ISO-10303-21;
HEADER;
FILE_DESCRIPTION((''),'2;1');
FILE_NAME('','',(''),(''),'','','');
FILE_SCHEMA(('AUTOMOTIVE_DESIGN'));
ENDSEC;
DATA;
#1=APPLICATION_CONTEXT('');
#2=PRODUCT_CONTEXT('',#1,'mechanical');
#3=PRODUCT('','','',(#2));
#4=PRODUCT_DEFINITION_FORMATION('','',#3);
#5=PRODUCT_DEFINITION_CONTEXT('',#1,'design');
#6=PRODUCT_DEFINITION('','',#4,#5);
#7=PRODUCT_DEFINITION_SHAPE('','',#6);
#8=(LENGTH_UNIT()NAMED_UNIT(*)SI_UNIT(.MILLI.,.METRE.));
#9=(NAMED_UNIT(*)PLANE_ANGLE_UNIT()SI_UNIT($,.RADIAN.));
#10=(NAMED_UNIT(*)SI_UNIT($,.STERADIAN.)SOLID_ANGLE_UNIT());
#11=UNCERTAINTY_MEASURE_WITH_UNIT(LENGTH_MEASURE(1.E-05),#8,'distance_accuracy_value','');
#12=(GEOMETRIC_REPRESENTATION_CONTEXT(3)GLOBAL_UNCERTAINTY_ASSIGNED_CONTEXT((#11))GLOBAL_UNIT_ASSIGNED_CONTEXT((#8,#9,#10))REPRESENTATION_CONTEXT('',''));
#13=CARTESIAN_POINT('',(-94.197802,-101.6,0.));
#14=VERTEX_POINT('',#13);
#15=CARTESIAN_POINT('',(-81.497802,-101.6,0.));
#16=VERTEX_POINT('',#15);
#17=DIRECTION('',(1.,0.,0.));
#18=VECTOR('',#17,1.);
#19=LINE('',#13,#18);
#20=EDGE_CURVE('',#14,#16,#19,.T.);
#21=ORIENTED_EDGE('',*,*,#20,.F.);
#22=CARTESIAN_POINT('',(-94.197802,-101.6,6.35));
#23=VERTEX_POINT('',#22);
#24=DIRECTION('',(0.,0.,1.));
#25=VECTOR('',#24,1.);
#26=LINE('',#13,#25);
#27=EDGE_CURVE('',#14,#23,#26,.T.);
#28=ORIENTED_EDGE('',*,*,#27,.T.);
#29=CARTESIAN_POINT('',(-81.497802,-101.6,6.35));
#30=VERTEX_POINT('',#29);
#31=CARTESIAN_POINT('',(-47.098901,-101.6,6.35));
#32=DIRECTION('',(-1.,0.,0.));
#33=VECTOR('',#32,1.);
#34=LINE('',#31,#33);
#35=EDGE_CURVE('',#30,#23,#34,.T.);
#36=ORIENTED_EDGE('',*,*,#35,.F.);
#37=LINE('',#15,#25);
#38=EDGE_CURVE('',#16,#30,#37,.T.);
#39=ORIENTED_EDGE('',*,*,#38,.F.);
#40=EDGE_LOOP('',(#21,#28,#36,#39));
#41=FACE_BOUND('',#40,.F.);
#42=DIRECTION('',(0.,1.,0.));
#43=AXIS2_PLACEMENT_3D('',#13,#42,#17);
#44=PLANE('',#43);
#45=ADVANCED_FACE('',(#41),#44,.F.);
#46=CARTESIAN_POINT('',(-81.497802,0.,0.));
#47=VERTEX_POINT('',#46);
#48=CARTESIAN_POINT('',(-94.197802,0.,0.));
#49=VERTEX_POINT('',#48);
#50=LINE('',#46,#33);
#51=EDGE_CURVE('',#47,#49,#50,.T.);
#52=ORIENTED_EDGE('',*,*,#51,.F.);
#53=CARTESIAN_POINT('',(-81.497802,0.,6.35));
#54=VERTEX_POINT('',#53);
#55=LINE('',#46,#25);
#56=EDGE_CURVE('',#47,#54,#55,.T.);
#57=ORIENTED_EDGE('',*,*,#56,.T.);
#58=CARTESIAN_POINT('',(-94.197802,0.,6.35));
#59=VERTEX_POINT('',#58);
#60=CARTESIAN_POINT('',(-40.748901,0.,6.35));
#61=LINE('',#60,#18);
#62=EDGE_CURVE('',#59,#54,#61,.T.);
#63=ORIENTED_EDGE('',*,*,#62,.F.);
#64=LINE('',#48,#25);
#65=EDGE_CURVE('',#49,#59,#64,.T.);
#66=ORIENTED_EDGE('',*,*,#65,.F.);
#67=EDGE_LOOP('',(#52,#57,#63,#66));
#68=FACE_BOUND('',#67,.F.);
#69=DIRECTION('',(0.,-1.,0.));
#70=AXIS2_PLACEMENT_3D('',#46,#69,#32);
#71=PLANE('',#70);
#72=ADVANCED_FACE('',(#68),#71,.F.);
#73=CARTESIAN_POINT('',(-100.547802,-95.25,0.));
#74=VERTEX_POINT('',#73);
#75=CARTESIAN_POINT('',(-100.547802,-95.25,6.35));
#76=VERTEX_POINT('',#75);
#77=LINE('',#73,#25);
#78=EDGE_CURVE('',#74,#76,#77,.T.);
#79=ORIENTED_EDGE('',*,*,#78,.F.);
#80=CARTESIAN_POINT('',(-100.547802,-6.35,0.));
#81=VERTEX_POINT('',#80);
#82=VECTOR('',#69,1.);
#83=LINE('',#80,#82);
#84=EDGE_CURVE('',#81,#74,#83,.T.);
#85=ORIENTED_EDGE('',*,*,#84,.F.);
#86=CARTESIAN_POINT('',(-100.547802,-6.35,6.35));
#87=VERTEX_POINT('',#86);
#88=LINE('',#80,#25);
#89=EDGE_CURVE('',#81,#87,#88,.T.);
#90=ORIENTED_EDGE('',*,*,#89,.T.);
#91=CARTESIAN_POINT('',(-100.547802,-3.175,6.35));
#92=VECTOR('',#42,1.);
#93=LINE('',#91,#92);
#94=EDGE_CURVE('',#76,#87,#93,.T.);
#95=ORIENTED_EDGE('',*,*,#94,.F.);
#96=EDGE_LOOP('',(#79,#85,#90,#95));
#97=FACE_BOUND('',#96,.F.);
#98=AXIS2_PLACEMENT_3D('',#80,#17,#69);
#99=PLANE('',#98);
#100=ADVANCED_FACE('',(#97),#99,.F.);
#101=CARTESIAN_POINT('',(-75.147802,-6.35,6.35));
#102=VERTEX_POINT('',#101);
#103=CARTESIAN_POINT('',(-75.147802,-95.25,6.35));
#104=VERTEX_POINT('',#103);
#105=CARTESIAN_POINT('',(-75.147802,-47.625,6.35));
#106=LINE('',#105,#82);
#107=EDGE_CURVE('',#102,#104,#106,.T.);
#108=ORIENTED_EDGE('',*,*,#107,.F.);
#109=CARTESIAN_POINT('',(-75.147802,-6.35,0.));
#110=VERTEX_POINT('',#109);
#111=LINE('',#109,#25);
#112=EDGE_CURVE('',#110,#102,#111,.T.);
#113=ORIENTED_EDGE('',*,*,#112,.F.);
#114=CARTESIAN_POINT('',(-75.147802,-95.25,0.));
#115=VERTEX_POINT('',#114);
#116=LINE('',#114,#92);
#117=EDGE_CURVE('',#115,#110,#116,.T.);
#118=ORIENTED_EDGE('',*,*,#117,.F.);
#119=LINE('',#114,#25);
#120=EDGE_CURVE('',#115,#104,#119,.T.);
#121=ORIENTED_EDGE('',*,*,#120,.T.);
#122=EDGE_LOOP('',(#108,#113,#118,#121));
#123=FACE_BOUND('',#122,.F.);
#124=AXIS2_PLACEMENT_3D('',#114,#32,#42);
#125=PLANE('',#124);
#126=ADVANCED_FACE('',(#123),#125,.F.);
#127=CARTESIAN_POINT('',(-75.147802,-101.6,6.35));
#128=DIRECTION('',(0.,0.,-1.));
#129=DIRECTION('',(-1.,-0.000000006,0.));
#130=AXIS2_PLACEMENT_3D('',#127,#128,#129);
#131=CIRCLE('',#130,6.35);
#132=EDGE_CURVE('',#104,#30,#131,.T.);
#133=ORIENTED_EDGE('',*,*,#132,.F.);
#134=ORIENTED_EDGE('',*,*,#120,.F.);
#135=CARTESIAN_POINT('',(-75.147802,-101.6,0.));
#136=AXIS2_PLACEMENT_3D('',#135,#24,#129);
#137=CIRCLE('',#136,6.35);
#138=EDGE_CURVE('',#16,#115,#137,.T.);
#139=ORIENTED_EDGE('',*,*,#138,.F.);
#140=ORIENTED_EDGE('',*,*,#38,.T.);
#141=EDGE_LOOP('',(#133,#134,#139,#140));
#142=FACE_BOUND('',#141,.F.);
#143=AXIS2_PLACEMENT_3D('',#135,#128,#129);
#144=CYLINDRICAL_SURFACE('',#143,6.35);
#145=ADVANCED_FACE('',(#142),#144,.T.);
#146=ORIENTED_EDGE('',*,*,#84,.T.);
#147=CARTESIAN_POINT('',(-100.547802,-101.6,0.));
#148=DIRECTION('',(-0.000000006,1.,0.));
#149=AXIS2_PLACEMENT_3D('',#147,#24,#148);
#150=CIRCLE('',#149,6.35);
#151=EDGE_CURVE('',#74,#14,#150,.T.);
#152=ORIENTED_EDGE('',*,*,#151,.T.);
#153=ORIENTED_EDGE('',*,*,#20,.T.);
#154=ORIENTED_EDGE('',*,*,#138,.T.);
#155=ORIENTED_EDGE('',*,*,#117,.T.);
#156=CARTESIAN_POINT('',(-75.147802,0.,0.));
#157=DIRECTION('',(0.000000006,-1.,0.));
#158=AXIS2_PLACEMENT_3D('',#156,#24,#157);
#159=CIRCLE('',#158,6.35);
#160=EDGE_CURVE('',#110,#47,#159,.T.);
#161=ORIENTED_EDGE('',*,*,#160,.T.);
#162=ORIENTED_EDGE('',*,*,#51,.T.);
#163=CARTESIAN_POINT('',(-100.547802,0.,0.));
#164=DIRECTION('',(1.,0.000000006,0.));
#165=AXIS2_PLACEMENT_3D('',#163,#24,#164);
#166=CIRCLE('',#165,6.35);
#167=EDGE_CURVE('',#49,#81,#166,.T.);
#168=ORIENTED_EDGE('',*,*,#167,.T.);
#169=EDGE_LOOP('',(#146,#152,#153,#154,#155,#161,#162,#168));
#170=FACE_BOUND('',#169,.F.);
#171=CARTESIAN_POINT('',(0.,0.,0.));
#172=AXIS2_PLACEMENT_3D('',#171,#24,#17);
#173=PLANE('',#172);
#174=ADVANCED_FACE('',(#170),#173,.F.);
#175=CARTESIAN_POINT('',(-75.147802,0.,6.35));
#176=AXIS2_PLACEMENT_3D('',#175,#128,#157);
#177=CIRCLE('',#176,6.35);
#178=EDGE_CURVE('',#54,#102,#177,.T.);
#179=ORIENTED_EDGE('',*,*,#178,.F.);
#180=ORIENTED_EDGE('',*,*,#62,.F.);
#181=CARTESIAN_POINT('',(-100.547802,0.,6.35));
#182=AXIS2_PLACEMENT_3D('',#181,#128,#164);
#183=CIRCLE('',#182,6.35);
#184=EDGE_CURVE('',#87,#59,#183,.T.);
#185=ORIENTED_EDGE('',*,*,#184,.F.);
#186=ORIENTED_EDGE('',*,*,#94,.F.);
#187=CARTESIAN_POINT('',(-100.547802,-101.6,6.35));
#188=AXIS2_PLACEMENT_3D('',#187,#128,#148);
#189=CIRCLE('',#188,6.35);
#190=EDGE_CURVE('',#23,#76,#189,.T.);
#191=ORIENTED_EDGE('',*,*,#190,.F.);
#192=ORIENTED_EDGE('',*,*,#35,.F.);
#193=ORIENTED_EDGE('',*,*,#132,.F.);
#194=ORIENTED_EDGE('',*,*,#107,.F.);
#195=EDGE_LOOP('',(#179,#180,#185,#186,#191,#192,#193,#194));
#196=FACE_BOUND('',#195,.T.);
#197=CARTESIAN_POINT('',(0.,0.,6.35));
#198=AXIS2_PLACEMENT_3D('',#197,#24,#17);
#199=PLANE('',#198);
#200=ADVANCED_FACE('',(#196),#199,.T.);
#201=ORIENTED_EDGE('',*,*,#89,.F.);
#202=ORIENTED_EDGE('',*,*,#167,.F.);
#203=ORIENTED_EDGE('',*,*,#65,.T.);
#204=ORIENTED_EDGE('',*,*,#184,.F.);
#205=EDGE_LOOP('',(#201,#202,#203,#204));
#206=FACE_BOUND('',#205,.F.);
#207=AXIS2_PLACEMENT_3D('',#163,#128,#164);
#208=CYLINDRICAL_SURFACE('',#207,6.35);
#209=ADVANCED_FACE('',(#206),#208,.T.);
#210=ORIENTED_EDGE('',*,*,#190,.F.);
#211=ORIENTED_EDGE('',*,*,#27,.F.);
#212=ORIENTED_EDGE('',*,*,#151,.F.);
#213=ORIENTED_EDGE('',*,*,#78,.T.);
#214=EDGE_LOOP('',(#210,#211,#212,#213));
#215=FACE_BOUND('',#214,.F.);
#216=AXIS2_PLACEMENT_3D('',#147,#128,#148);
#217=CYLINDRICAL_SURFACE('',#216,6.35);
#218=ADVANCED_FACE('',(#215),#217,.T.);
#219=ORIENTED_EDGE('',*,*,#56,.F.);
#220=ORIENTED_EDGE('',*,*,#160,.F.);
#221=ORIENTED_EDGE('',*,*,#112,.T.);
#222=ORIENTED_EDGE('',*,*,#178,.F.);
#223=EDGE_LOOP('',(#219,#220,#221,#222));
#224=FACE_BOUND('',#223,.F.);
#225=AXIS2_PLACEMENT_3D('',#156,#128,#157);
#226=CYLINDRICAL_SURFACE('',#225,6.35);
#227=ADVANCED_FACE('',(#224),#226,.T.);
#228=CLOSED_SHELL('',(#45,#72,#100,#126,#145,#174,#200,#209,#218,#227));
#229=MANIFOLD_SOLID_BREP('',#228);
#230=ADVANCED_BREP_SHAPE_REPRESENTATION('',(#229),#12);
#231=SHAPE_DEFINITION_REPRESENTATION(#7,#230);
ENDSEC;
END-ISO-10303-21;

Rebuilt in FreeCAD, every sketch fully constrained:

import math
import FreeCAD as App
import Part
import Sketcher

V = App.Vector
Q = App.Units.Quantity

doc = App.newDocument("Part")
body = doc.addObject("PartDesign::Body", "Body")

# Sketch on XY plane
sketch1 = body.newObject("Sketcher::SketchObject", "Sketch")
sketch1.AttachmentSupport = (doc.getObject("XY_Plane"), [""])
sketch1.MapMode = "FlatFace"
sketch1.addGeometry([
    Part.LineSegment(V(-127, 127, 0), V(-127, -127, 0)),
    Part.LineSegment(V(-127, -127, 0), V(127, -127, 0)),
    Part.LineSegment(V(127, -127, 0), V(127, 127, 0)),
    Part.LineSegment(V(127, 127, 0), V(-127, 127, 0)),
], False)
sketch1.addConstraint([
    Sketcher.Constraint("Coincident", 0, 2, 1, 1),
    Sketcher.Constraint("Coincident", 1, 2, 2, 1),
    Sketcher.Constraint("Coincident", 2, 2, 3, 1),
    Sketcher.Constraint("Coincident", 3, 2, 0, 1),
    Sketcher.Constraint("Vertical", 0),
    Sketcher.Constraint("Horizontal", 1),
    Sketcher.Constraint("Vertical", 2),
    Sketcher.Constraint("Horizontal", 3),
    Sketcher.Constraint("Symmetric", 0, 2, 2, 2, -1, 1),
    Sketcher.Constraint("Equal", 3, 0),
    Sketcher.Constraint("DistanceX", 1, 1, 1, 2, Q("10 in")),
])
pad1 = body.newObject("PartDesign::Pad", "Pad")
pad1.Profile = sketch1
pad1.Length = Q("0.25 in")

# Sketch on XY plane
sketch2 = body.newObject("Sketcher::SketchObject", "Sketch001")
sketch2.AttachmentSupport = (doc.getObject("XY_Plane"), [""])
sketch2.MapMode = "FlatFace"
sketch2.addGeometry([
    Part.LineSegment(V(-127, -127, 0), V(-127, 127, 0)),  # 0
    Part.LineSegment(V(-127, 127, 0), V(127, 127, 0)),  # 1
    Part.LineSegment(V(127, 127, 0), V(127, -127, 0)),  # 2
    Part.LineSegment(V(127, -127, 0), V(-127, -127, 0)),  # 3
    Part.LineSegment(V(-101, -6, 0), V(-101, -95, 0)),  # 4
    Part.ArcOfCircle(Part.Circle(V(-101, -102, 0), V(0, 0, 1), 6), math.radians(90), math.radians(360)),  # 5
    Part.LineSegment(V(-94, -102, 0), V(-81, -102, 0)),  # 6
    Part.ArcOfCircle(Part.Circle(V(-75, -102, 0), V(0, 0, 1), 6), math.radians(-180), math.radians(90)),  # 7
    Part.LineSegment(V(-75, -95, 0), V(-75, -6, 0)),  # 8
    Part.ArcOfCircle(Part.Circle(V(-75, 0, 0), V(0, 0, 1), 6), math.radians(-90), math.radians(180)),  # 9
    Part.LineSegment(V(-81, 0, 0), V(-94, 0, 0)),  # 10
    Part.ArcOfCircle(Part.Circle(V(-101, 0, 0), V(0, 0, 1), 6), math.radians(0), math.radians(270)),  # 11
], False)
sketch2.addConstraint([
    Sketcher.Constraint("Coincident", 0, 2, 1, 1),
    Sketcher.Constraint("Coincident", 1, 2, 2, 1),
    Sketcher.Constraint("Coincident", 2, 2, 3, 1),
    Sketcher.Constraint("Coincident", 3, 2, 0, 1),
    Sketcher.Constraint("Coincident", 4, 2, 5, 1),
    Sketcher.Constraint("Coincident", 5, 2, 6, 1),
    Sketcher.Constraint("Coincident", 6, 2, 7, 1),
    Sketcher.Constraint("Coincident", 7, 2, 8, 1),
    Sketcher.Constraint("Coincident", 8, 2, 9, 1),
    Sketcher.Constraint("Coincident", 9, 2, 10, 1),
    Sketcher.Constraint("Coincident", 10, 2, 11, 1),
    Sketcher.Constraint("Coincident", 11, 2, 4, 1),
    Sketcher.Constraint("Vertical", 0),
    Sketcher.Constraint("Horizontal", 1),
    Sketcher.Constraint("Vertical", 2),
    Sketcher.Constraint("Horizontal", 3),
    Sketcher.Constraint("Vertical", 4),
    Sketcher.Constraint("Horizontal", 6),
    Sketcher.Constraint("Vertical", 8),
    Sketcher.Constraint("Horizontal", 10),
    Sketcher.Constraint("Equal", 5, 7),
    Sketcher.Constraint("Equal", 7, 9),
    Sketcher.Constraint("Equal", 9, 11),
    Sketcher.Constraint("Symmetric", 0, 2, 2, 2, -1, 1),
    Sketcher.Constraint("PointOnObject", 9, 3, -1),
    Sketcher.Constraint("PointOnObject", 11, 3, -1),
    Sketcher.Constraint("PointOnObject", 9, 2, -1),
    Sketcher.Constraint("Horizontal", 5, 3, 7, 3),
    Sketcher.Constraint("Horizontal", 7, 3, 5, 2),
    Sketcher.Constraint("Vertical", 7, 3, 9, 3),
    Sketcher.Constraint("Vertical", 5, 3, 11, 3),
    Sketcher.Constraint("Vertical", 11, 3, 4, 2),
    Sketcher.Constraint("Vertical", 9, 3, 7, 2),
    Sketcher.Constraint("Equal", 3, 0),
    Sketcher.Constraint("DistanceX", 1, 1, 1, 2, Q("10 in")),
    Sketcher.Constraint("Radius", 5, Q("0.25 in")),
    Sketcher.Constraint("DistanceX", 6, 1, 6, 2, Q("0.5 in")),
    Sketcher.Constraint("DistanceY", 4, 2, 4, 1, Q("3.5 in")),
    Sketcher.Constraint("DistanceX", 5, 3, -1, 1, 100.547802),
])
pocket1 = body.newObject("PartDesign::Pocket", "Pocket")
pocket1.Profile = sketch2
pocket1.Length = Q("1 in")
pocket1.Reversed = True

doc.recompute()
